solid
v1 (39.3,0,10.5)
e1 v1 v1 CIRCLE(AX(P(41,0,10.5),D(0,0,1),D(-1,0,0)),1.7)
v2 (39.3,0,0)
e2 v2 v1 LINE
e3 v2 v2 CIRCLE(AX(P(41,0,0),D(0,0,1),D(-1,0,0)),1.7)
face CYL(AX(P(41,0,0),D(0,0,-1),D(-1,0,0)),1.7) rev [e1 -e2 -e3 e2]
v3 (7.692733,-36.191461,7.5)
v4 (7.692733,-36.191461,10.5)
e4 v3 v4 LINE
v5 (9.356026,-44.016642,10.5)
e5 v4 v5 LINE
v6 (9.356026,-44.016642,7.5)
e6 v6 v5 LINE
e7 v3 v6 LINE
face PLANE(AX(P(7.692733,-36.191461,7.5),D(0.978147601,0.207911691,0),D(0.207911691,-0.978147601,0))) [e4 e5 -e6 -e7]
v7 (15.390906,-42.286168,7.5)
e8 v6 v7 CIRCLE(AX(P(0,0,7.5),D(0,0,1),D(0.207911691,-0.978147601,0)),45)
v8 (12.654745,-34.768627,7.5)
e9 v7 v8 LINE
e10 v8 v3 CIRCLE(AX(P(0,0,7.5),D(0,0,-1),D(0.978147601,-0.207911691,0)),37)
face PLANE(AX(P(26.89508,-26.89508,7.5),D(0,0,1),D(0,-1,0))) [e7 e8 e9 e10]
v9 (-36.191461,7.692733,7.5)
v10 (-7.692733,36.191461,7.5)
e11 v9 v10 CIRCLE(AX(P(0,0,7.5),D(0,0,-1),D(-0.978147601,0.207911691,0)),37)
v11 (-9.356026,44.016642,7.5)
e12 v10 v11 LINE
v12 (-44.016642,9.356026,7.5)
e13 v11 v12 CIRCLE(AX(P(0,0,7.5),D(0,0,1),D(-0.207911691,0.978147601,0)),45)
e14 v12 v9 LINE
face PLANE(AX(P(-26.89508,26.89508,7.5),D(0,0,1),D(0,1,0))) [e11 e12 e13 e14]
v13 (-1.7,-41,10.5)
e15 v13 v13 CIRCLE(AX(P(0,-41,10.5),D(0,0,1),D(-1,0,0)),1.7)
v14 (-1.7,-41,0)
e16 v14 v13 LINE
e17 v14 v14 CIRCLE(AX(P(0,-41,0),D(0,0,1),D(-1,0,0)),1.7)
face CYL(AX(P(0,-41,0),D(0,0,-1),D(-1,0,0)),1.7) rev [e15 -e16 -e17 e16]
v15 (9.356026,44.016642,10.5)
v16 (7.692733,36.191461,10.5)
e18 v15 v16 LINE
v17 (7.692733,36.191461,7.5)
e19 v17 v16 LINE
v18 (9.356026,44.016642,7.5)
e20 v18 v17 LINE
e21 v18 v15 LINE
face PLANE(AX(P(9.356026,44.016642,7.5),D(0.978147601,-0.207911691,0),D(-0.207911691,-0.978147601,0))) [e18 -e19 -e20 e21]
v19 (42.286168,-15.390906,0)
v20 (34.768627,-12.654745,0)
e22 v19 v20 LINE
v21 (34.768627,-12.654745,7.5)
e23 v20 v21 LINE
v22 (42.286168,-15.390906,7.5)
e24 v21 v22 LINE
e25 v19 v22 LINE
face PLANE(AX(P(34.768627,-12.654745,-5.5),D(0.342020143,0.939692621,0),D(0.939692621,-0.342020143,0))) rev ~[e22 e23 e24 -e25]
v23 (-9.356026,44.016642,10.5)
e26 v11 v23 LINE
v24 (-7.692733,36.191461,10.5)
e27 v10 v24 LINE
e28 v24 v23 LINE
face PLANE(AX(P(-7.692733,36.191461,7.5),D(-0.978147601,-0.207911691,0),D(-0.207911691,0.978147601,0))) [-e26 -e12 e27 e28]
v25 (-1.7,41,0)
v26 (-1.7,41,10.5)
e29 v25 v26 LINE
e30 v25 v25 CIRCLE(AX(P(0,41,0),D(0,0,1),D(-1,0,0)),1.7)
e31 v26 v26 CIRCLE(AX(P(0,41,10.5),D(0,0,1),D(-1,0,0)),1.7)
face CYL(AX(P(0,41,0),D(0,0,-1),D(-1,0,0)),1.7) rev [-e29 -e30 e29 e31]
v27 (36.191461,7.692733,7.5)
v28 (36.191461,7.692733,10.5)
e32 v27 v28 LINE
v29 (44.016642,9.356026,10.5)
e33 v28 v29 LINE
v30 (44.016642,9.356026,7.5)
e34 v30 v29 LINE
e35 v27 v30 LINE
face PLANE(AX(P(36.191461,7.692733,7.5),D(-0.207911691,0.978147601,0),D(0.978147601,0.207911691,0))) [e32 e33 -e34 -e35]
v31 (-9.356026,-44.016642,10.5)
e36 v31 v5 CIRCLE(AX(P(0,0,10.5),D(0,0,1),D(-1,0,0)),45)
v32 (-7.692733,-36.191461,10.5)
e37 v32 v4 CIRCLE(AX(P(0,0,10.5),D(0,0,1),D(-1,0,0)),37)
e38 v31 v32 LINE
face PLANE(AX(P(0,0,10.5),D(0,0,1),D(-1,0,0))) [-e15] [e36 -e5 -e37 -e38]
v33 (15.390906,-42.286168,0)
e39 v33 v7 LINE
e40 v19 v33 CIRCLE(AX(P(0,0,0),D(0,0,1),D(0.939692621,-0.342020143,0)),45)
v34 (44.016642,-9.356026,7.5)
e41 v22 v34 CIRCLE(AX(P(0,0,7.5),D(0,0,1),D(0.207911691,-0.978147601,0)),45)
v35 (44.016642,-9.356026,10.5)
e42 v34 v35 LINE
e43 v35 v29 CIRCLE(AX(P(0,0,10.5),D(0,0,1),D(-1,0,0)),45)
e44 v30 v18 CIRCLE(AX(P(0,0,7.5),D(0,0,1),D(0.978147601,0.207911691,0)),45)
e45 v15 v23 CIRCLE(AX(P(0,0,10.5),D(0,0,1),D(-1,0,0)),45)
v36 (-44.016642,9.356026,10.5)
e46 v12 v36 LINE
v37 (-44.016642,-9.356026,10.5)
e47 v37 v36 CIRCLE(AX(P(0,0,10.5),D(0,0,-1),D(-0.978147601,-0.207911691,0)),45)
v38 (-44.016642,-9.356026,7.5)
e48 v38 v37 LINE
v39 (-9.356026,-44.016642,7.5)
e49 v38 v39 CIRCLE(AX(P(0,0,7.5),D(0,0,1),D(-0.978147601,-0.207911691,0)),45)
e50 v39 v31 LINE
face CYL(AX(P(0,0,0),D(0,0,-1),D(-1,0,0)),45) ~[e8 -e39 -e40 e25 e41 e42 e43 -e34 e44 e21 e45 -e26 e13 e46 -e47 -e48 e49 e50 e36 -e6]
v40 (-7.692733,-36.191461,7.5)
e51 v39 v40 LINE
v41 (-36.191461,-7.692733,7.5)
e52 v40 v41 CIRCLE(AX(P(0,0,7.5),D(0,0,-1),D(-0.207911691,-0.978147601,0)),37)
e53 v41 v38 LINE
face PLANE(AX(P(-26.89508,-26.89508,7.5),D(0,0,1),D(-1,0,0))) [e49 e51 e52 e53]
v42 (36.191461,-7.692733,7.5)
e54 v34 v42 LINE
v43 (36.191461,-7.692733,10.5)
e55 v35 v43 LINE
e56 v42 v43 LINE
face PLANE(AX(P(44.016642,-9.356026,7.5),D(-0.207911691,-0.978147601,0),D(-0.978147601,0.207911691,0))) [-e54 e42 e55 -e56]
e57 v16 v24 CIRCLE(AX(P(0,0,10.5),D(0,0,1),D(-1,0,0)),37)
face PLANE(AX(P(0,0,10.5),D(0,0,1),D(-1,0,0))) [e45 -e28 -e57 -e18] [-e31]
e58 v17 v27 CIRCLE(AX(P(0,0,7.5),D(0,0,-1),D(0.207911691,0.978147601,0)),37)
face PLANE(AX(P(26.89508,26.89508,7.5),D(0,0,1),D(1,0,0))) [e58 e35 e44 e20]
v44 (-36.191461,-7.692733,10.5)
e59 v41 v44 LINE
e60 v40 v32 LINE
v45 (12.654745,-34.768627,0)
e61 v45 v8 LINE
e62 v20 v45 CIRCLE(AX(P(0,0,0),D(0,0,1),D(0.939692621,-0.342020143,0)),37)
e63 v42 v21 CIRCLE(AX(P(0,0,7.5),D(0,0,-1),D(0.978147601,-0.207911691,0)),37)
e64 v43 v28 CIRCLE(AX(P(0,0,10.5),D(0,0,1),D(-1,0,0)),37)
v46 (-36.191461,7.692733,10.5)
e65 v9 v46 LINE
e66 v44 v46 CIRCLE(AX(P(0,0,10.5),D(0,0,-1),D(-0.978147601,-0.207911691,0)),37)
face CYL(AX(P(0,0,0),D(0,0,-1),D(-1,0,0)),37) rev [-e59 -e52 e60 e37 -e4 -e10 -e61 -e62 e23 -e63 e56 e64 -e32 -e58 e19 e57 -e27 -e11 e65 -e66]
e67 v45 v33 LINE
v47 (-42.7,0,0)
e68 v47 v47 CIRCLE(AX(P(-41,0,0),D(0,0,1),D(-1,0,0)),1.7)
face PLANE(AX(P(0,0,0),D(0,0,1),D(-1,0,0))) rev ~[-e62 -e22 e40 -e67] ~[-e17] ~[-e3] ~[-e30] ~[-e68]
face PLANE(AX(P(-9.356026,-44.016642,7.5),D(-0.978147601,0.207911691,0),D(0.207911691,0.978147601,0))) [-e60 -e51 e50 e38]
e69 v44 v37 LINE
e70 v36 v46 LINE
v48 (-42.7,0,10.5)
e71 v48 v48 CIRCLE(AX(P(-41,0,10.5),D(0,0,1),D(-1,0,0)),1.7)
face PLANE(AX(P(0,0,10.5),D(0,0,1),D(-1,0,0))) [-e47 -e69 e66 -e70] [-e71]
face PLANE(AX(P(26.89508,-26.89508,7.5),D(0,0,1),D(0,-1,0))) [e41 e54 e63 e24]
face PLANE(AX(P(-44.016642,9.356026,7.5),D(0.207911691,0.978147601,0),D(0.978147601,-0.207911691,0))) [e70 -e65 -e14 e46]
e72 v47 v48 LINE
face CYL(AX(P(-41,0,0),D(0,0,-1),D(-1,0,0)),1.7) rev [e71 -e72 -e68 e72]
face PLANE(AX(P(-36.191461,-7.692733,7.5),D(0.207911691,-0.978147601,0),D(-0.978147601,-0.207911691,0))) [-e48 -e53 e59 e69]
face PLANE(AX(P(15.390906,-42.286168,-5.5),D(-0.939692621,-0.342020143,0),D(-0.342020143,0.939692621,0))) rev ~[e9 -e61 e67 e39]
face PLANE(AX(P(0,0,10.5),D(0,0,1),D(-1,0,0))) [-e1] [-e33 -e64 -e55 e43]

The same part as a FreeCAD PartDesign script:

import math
import FreeCAD as App
import Part
import Sketcher
from FreeCAD import Vector
Q = App.Units.Quantity

doc = App.newDocument("Part")
params = doc.addObject("Spreadsheet::Sheet", "Params")
for row, (alias, value) in enumerate([
    ("sketch1_diameter", "90 mm"),
    ("sketch1_diameter2", "74 mm"),
    ("sketch1_diameter3", "3.4 mm"),
    ("pad1_length", "10.5 mm"),
    ("sketch2_radius", "37 mm"),
    ("sketch2_radius2", "45 mm"),
    ("pocket1_length", "3 mm"),
    ("sketch3_radius", "37 mm"),
    ("sketch3_radius2", "45 mm"),
    ("pocket2_length", "13 mm"),
], start=1):
    params.set(f"A{row}", alias)
    params.set(f"B{row}", "=" + value)
    params.setAlias(f"B{row}", alias)

body = doc.addObject("PartDesign::Body", "Body")

# Sketch on XY plane
sketch1 = body.newObject("Sketcher::SketchObject", "Sketch")
sketch1.AttachmentSupport = (doc.getObject("XY_Plane"), [""])
sketch1.MapMode = "FlatFace"
sketch1.addGeometry([
    Part.Circle(Vector(0, 0, 0), Vector(0, 0, 1), 45),  # 0
    Part.Circle(Vector(41, 0, 0), Vector(0, 0, 1), 1.7),  # 1
    Part.Circle(Vector(0, 41, 0), Vector(0, 0, 1), 1.7),  # 2
    Part.Circle(Vector(0, 0, 0), Vector(0, 0, 1), 37),  # 3
    Part.Circle(Vector(-41, 0, 0), Vector(0, 0, 1), 1.7),  # 4
    Part.Circle(Vector(0, -41, 0), Vector(0, 0, 1), 1.7),  # 5
], False)
sketch1.addConstraint([
    Sketcher.Constraint("Coincident", 0, 3, -1, 1),
    Sketcher.Constraint("Coincident", 3, 3, -1, 1),
    Sketcher.Constraint("Equal", 1, 2),
    Sketcher.Constraint("Equal", 2, 4),
    Sketcher.Constraint("Equal", 4, 5),
    Sketcher.Constraint("Symmetric", 1, 3, 4, 3, -1, 1),
    Sketcher.Constraint("Symmetric", 2, 3, 5, 3, -1, 1),
    Sketcher.Constraint("PointOnObject", 1, 3, -1),
    Sketcher.Constraint("PointOnObject", 2, 3, -2),
    Sketcher.Constraint("Diameter", 0, Q("90 mm")),
    Sketcher.Constraint("Diameter", 3, Q("74 mm")),
    Sketcher.Constraint("Diameter", 1, Q("3.4 mm")),
    Sketcher.Constraint("DistanceX", -1, 1, 1, 3, Q("41 mm")),
    Sketcher.Constraint("DistanceY", -1, 1, 2, 3, Q("41 mm")),
])
sketch1.setExpression("Constraints[9]", "Params.sketch1_diameter")
sketch1.setExpression("Constraints[10]", "Params.sketch1_diameter2")
sketch1.setExpression("Constraints[11]", "Params.sketch1_diameter3")
pad1 = body.newObject("PartDesign::Pad", "Pad")
pad1.Profile = sketch1
pad1.setExpression("Length", "Params.pad1_length")

# Sketch on XY plane
sketch2 = body.newObject("Sketcher::SketchObject", "Sketch001")
sketch2.AttachmentSupport = (doc.getObject("XY_Plane"), [""])
sketch2.MapMode = "FlatFace"
sketch2.AttachmentOffset = App.Placement(Vector(0, 0, 7.5), App.Rotation())
sketch2.addGeometry([
    Part.LineSegment(Vector(9.356026, 44.016642, 0), Vector(7.692733, 36.191461, 0)),
    Part.ArcOfCircle(Part.Circle(Vector(0, 0, 0), Vector(0, 0, 1), 37), math.radians(12), math.radians(78)),
    Part.LineSegment(Vector(36.191461, 7.692733, 0), Vector(44.016642, 9.356026, 0)),
    Part.ArcOfCircle(Part.Circle(Vector(0, 0, 0), Vector(0, 0, 1), 45), math.radians(12), math.radians(78)),
], False)
sketch2.addConstraint([
    Sketcher.Constraint("Coincident", 0, 2, 1, 2),
    Sketcher.Constraint("Coincident", 1, 1, 2, 1),
    Sketcher.Constraint("Coincident", 2, 2, 3, 1),
    Sketcher.Constraint("Coincident", 3, 2, 0, 1),
    Sketcher.Constraint("Coincident", 1, 3, -1, 1),
    Sketcher.Constraint("Coincident", 3, 3, -1, 1),
    Sketcher.Constraint("Radius", 1, Q("37 mm")),
    Sketcher.Constraint("Radius", 3, Q("45 mm")),
    Sketcher.Constraint("Angle", 0, Q("-102 deg")),
    Sketcher.Constraint("Angle", 2, Q("12 deg")),
    Sketcher.Constraint("DistanceY", -1, 1, 0, 2, Q("36.191461 mm")),
    Sketcher.Constraint("DistanceX", -1, 1, 1, 1, Q("36.191461 mm")),
])
sketch2.setExpression("Constraints[6]", "Params.sketch2_radius")
sketch2.setExpression("Constraints[7]", "Params.sketch2_radius2")
pocket1 = body.newObject("PartDesign::Pocket", "Pocket")
pocket1.Profile = sketch2
pocket1.setExpression("Length", "Params.pocket1_length")
pocket1.Reversed = True
doc.recompute()

polarpattern = body.newObject("PartDesign::PolarPattern", "PolarPattern")
polarpattern.Originals = [pocket1]
polarpattern.Axis = (doc.getObject("Z_Axis"), [""])
polarpattern.Angle = 360
polarpattern.Occurrences = 4
body.Tip = polarpattern

# Sketch on XY plane
sketch3 = body.newObject("Sketcher::SketchObject", "Sketch002")
sketch3.AttachmentSupport = (doc.getObject("XY_Plane"), [""])
sketch3.MapMode = "FlatFace"
sketch3.AttachmentOffset = App.Placement(Vector(0, 0, -5.5), App.Rotation())
sketch3.addGeometry([
    Part.LineSegment(Vector(42.286168, -15.390906, 0), Vector(34.768627, -12.654745, 0)),
    Part.ArcOfCircle(Part.Circle(Vector(0, 0, 0), Vector(0, 0, 1), 37), math.radians(-70), math.radians(-20)),
    Part.LineSegment(Vector(12.654745, -34.768627, 0), Vector(15.390906, -42.286168, 0)),
    Part.ArcOfCircle(Part.Circle(Vector(0, 0, 0), Vector(0, 0, 1), 45), math.radians(-70), math.radians(-20)),
], False)
sketch3.addConstraint([
    Sketcher.Constraint("Coincident", 0, 2, 1, 2),
    Sketcher.Constraint("Coincident", 1, 1, 2, 1),
    Sketcher.Constraint("Coincident", 2, 2, 3, 1),
    Sketcher.Constraint("Coincident", 3, 2, 0, 1),
    Sketcher.Constraint("Coincident", 1, 3, -1, 1),
    Sketcher.Constraint("Coincident", 3, 3, -1, 1),
    Sketcher.Constraint("Radius", 1, Q("37 mm")),
    Sketcher.Constraint("Radius", 3, Q("45 mm")),
    Sketcher.Constraint("Angle", 0, Q("160 deg")),
    Sketcher.Constraint("Angle", 2, Q("-70 deg")),
    Sketcher.Constraint("DistanceX", 1, 1, 0, 2, Q("22.113882 mm")),
    Sketcher.Constraint("DistanceY", 1, 1, 0, 2, Q("22.113882 mm")),
])
sketch3.setExpression("Constraints[6]", "Params.sketch3_radius")
sketch3.setExpression("Constraints[7]", "Params.sketch3_radius2")
pocket2 = body.newObject("PartDesign::Pocket", "Pocket001")
pocket2.Profile = sketch3
pocket2.setExpression("Length", "Params.pocket2_length")
pocket2.Reversed = True

doc.recompute()
